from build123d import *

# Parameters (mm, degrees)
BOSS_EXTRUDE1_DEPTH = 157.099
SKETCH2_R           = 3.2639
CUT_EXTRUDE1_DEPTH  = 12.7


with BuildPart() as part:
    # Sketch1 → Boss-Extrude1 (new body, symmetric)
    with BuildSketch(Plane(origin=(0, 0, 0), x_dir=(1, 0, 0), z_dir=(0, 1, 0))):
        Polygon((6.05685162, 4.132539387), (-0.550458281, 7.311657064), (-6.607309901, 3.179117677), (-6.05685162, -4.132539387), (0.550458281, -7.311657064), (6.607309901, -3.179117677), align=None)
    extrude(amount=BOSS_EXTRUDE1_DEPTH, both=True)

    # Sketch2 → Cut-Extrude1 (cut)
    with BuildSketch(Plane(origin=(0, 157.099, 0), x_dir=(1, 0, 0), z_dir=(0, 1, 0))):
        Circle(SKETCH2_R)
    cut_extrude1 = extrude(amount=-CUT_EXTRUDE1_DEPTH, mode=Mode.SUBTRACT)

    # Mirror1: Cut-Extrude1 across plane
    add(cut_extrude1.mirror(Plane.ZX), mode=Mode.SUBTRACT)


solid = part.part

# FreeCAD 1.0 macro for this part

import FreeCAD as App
import Part
import Sketcher

V = App.Vector
Q = App.Units.Quantity

doc = App.newDocument("Part")
body = doc.addObject("PartDesign::Body", "Body")

sketch1 = body.newObject("Sketcher::SketchObject", "Sketch")
sketch1.AttachmentSupport = (doc.getObject("XZ_Plane"), [""])
sketch1.MapMode = "FlatFace"
sketch1.addGeometry([
    Part.LineSegment(V(6, -4, 0), V(-1, -7, 0)),
    Part.LineSegment(V(-1, -7, 0), V(-7, -3, 0)),
    Part.LineSegment(V(-7, -3, 0), V(-6, 4, 0)),
    Part.LineSegment(V(-6, 4, 0), V(1, 7, 0)),
    Part.LineSegment(V(1, 7, 0), V(7, 3, 0)),
    Part.LineSegment(V(7, 3, 0), V(6, -4, 0)),
], False)
sketch1.addConstraint([
    Sketcher.Constraint("Coincident", 0, 2, 1, 1),
    Sketcher.Constraint("Coincident", 1, 2, 2, 1),
    Sketcher.Constraint("Coincident", 2, 2, 3, 1),
    Sketcher.Constraint("Coincident", 3, 2, 4, 1),
    Sketcher.Constraint("Coincident", 4, 2, 5, 1),
    Sketcher.Constraint("Coincident", 5, 2, 0, 1),
    Sketcher.Constraint("Symmetric", 0, 2, 3, 2, -1, 1),
    Sketcher.Constraint("Symmetric", 1, 2, 4, 2, -1, 1),
    Sketcher.Constraint("Symmetric", 2, 2, 5, 2, -1, 1),
    Sketcher.Constraint("Equal", 0, 1),
    Sketcher.Constraint("Equal", 1, 2),
    Sketcher.Constraint("Distance", 0, 7.332348),
    Sketcher.Constraint("DistanceX", 0, 2, -1, 1, 0.550458),
    Sketcher.Constraint("DistanceX", 1, 2, -1, 1, 6.60731),
    Sketcher.Constraint("DistanceX", 2, 2, -1, 1, 6.056852),
])
pad1 = body.newObject("PartDesign::Pad", "Pad")
pad1.Profile = sketch1
pad1.Length = Q("12.37 in")
pad1.Midplane = True

sketch2 = body.newObject("Sketcher::SketchObject", "Sketch001")
sketch2.AttachmentSupport = (doc.getObject("XZ_Plane"), [""])
sketch2.MapMode = "FlatFace"
sketch2.AttachmentOffset = App.Placement(V(0, 0, -6.185 * 25.4), App.Rotation())
sketch2.addGeometry(Part.Circle(V(0, 0, 0), V(0, 0, 1), 3.3), False)
sketch2.addConstraint([
    Sketcher.Constraint("Coincident", 0, 3, -1, 1),
    Sketcher.Constraint("Diameter", 0, Q("0.257 in")),
])
pocket1 = body.newObject("PartDesign::Pocket", "Pocket")
pocket1.Profile = sketch2
pocket1.Length = Q("0.5 in")
pocket1.Reversed = True
doc.recompute()

mirrored = body.newObject("PartDesign::Mirrored", "Mirrored")
mirrored.Originals = [pocket1]
mirrored.MirrorPlane = (doc.getObject("XZ_Plane"), [""])
body.Tip = mirrored

doc.recompute()
